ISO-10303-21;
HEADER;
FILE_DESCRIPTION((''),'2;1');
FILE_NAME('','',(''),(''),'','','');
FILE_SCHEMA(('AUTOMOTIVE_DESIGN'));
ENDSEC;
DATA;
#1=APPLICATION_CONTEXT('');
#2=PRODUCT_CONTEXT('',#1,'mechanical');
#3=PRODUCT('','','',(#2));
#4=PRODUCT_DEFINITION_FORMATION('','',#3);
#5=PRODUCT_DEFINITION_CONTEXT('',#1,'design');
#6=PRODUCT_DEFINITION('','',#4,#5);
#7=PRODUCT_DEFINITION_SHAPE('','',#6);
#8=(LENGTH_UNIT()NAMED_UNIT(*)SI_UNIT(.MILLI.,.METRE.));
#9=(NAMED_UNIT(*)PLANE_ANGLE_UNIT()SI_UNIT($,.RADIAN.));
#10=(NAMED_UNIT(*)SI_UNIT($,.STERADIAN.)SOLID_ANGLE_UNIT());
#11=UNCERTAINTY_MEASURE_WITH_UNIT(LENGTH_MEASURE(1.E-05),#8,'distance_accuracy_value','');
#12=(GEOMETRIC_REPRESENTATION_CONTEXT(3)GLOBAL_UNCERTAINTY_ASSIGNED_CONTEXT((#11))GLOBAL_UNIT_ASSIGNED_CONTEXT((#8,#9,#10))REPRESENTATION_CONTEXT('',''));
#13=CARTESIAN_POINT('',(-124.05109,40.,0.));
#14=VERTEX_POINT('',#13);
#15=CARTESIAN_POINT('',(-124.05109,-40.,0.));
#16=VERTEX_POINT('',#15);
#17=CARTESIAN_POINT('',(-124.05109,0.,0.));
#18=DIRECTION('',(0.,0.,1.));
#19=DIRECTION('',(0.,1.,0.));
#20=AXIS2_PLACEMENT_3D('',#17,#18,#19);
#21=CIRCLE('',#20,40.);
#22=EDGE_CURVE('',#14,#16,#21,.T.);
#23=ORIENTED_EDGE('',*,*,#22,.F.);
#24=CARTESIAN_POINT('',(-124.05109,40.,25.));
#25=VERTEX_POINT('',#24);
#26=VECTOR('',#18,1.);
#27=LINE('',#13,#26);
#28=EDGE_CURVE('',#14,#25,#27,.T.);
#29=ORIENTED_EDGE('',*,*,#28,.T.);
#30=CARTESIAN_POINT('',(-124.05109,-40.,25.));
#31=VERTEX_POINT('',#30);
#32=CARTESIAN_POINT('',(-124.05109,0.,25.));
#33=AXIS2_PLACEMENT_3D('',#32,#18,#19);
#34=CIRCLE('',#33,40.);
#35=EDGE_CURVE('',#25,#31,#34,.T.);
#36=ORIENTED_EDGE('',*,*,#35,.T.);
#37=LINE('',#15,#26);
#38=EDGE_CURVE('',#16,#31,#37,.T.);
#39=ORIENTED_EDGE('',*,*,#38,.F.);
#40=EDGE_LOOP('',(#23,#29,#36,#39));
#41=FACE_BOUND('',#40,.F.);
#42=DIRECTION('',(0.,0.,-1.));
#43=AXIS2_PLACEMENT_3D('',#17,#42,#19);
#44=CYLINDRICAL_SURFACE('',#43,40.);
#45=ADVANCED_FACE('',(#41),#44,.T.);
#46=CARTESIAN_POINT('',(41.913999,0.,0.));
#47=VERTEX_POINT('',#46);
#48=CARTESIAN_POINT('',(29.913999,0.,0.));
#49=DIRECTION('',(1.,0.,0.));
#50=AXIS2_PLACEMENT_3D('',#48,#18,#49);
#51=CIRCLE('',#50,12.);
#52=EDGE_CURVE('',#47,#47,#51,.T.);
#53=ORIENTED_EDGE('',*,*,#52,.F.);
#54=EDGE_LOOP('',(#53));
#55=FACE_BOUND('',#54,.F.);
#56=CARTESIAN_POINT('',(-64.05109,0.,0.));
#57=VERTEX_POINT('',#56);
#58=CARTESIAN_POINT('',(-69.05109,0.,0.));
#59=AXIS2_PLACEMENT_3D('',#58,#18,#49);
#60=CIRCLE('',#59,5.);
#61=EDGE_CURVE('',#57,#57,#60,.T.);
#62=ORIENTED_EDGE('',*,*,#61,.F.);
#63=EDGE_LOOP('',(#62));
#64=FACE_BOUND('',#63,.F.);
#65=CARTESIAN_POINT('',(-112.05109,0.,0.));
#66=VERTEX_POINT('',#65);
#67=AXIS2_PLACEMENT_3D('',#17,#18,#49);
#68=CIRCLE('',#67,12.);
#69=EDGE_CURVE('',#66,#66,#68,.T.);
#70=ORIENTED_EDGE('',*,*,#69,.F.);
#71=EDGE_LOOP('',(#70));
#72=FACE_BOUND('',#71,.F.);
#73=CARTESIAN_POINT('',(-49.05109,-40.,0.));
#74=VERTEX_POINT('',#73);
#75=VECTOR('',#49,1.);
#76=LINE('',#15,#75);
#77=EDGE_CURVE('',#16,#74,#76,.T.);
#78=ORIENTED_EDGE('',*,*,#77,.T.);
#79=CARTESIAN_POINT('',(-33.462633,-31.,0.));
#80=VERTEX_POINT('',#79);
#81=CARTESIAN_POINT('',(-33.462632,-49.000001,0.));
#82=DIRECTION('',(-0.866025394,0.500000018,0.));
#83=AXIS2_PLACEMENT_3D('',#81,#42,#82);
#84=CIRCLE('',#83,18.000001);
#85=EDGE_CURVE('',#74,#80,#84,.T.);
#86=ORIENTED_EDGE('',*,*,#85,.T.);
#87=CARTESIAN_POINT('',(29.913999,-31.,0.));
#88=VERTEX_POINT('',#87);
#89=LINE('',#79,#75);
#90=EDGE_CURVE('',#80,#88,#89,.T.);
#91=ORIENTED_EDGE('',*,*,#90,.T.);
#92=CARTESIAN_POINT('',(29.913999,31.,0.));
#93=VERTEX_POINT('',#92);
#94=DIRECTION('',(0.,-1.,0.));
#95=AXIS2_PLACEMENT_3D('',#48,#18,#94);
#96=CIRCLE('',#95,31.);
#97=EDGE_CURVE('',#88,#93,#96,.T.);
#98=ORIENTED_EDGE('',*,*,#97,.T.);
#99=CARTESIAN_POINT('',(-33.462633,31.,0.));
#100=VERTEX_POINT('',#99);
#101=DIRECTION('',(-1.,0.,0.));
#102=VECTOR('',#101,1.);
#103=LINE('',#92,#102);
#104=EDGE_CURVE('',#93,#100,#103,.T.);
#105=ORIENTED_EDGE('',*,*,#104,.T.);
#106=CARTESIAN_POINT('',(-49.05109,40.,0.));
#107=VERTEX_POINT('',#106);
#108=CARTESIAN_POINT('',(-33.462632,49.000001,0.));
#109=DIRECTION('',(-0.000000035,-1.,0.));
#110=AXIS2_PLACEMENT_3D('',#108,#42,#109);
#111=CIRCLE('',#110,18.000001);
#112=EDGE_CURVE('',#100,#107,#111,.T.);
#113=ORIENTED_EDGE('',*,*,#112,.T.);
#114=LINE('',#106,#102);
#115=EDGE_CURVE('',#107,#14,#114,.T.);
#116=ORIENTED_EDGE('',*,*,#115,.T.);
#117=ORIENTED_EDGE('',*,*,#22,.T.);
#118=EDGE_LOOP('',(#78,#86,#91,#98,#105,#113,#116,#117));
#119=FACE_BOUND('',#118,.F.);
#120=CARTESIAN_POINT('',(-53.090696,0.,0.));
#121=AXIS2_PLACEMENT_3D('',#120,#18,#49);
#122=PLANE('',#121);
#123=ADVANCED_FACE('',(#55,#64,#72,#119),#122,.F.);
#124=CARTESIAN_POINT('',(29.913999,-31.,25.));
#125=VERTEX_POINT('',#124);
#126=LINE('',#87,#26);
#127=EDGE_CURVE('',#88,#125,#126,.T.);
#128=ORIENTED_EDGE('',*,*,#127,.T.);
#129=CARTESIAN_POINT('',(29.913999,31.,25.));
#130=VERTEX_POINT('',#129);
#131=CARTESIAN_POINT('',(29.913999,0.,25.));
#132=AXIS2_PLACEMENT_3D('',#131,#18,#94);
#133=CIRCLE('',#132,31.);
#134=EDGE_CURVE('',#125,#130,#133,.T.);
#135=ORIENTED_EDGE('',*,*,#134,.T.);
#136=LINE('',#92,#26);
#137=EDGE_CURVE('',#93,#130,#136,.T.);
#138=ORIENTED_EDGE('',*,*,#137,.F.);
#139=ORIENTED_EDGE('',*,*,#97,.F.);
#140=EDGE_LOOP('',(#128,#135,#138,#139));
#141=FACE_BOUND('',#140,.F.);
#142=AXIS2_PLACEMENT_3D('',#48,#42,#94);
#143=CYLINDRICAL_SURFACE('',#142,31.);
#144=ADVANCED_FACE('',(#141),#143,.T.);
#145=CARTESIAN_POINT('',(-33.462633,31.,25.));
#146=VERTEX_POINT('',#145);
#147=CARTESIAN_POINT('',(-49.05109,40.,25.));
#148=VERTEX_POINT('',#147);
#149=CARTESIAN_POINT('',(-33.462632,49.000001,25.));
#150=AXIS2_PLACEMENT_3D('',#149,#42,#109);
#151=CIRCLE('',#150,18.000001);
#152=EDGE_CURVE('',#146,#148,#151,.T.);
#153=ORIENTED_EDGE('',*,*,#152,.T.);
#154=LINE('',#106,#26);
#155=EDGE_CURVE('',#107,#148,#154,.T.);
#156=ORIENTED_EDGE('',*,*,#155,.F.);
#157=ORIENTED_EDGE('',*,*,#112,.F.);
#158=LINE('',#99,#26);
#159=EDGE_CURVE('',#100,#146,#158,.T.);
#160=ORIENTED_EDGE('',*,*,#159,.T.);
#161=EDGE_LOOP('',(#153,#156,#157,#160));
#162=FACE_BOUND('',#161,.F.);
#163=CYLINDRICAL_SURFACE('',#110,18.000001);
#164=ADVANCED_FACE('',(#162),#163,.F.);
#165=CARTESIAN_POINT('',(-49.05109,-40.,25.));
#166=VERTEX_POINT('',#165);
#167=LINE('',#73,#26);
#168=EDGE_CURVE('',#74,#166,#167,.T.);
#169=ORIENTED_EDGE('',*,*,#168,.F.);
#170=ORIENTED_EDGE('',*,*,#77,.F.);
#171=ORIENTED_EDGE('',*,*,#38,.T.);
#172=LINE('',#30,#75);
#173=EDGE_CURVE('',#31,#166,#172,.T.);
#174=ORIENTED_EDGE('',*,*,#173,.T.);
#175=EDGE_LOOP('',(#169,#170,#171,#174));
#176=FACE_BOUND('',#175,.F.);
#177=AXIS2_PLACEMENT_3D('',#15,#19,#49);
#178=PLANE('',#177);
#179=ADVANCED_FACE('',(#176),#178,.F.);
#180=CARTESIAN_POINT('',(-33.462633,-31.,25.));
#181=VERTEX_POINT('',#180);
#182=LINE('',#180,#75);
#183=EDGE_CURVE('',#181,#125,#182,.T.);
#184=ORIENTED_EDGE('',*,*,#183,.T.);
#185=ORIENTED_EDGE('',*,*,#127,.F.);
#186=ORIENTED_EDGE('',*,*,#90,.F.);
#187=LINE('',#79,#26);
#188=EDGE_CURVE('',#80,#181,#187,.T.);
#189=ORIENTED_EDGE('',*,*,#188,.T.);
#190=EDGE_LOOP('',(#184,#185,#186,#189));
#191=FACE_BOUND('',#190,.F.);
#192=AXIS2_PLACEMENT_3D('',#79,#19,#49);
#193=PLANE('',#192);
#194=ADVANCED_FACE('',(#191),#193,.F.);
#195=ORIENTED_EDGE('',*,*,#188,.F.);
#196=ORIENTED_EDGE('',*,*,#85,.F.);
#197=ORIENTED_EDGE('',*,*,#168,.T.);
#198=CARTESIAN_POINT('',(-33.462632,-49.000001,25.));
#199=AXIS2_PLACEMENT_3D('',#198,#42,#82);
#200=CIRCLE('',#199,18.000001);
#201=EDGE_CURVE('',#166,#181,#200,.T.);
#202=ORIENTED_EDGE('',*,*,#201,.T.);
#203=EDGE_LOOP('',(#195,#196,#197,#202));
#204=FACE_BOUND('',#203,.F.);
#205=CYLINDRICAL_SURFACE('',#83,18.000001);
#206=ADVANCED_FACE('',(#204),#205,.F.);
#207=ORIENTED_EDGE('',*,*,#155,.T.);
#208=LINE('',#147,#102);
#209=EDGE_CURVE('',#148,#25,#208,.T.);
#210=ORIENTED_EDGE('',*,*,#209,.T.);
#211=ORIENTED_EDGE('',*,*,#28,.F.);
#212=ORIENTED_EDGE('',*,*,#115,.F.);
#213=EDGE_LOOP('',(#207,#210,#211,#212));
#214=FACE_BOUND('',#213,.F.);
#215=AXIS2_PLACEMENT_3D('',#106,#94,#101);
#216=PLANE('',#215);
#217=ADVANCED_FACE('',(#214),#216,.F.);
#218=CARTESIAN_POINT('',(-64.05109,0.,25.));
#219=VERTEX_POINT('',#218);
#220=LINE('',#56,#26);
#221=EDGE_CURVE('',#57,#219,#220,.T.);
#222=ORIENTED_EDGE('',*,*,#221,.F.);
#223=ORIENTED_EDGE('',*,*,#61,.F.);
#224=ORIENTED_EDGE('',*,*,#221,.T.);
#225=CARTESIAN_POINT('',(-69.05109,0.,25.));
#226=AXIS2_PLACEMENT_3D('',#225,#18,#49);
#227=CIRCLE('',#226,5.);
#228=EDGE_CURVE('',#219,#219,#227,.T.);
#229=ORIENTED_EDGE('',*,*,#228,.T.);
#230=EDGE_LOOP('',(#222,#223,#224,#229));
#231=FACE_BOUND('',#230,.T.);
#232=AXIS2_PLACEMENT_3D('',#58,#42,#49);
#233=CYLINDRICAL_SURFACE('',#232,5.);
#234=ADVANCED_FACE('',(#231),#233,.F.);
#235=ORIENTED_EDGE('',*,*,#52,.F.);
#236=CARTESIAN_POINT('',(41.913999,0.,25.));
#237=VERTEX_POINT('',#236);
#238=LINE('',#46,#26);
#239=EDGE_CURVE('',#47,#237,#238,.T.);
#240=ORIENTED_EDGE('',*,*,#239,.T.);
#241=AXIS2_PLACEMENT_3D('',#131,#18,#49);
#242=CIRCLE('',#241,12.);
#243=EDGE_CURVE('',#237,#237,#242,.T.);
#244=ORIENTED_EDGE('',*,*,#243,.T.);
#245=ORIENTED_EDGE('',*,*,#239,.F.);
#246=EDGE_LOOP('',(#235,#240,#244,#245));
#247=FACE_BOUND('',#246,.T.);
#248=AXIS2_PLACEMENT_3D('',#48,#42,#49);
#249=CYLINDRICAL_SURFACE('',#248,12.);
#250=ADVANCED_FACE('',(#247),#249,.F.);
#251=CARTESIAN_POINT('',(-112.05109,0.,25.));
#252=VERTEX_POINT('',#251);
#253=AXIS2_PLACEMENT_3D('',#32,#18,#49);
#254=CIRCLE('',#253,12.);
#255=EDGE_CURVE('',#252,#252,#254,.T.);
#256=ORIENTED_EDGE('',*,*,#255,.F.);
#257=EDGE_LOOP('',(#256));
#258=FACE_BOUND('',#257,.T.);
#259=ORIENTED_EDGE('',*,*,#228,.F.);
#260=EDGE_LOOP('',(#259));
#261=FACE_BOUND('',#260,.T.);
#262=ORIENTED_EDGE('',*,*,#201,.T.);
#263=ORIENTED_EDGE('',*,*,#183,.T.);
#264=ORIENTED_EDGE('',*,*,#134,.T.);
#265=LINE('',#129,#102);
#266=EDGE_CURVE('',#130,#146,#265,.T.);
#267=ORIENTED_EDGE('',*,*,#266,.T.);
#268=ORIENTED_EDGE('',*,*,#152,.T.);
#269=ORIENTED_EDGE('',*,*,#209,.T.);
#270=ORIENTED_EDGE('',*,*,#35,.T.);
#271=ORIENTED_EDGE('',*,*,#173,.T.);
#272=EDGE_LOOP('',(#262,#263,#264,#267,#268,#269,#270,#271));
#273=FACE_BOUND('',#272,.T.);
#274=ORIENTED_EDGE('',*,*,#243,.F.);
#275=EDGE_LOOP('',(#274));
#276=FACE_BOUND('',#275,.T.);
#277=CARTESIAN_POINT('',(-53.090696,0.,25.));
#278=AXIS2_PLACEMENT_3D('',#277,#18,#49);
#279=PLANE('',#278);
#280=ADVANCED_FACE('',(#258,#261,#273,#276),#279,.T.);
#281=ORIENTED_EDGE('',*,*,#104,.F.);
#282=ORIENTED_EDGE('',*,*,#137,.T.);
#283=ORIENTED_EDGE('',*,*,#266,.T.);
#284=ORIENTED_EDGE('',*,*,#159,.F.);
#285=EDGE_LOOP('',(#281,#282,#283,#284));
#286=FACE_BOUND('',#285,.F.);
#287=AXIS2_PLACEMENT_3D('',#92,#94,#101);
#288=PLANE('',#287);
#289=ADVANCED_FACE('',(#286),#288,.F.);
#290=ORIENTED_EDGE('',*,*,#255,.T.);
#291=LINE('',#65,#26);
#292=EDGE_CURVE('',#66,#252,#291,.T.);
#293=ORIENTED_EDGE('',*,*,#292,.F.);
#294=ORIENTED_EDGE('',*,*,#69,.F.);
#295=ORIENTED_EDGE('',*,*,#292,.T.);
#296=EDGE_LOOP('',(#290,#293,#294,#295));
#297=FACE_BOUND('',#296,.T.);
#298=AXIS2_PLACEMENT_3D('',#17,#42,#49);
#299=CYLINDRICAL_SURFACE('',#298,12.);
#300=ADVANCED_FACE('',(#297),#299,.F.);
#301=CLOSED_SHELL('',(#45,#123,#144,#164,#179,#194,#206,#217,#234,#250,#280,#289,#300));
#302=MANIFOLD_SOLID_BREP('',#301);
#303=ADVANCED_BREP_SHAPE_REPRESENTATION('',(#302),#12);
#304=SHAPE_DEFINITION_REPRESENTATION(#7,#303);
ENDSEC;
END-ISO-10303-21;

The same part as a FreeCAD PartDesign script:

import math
import FreeCAD as App
import Part
import Sketcher
from FreeCAD import Vector
Q = App.Units.Quantity

doc = App.newDocument("Part")
body = doc.addObject("PartDesign::Body", "Body")

# Sketch on XY plane
sketch1 = doc.addObject("Sketcher::SketchObject", "Sketch")
body.addObject(sketch1)
sketch1.AttachmentSupport = (doc.XY_Plane, [""])
sketch1.MapMode = "FlatFace"
sketch1.addGeometry([
    Part.LineSegment(Vector(-49.05109, 40, 0), Vector(-124.05109, 40, 0)),  # 0
    Part.ArcOfCircle(Part.Circle(Vector(-124.05109, 0, 0), Vector(0, 0, 1), 40), math.radians(90), math.radians(270)),  # 1
    Part.LineSegment(Vector(-124.05109, -40, 0), Vector(-49.05109, -40, 0)),  # 2
    Part.ArcOfCircle(Part.Circle(Vector(-33.462632, -49.000001, 0), Vector(0, 0, 1), 18.000001), math.radians(90.000002), math.radians(149.999999)),  # 3
    Part.LineSegment(Vector(-33.462633, -31, 0), Vector(29.913999, -31, 0)),  # 4
    Part.ArcOfCircle(Part.Circle(Vector(29.913999, 0, 0), Vector(0, 0, 1), 31), math.radians(-90), math.radians(90)),  # 5
    Part.LineSegment(Vector(29.913999, 31, 0), Vector(-33.462633, 31, 0)),  # 6
    Part.ArcOfCircle(Part.Circle(Vector(-33.462632, 49.000001, 0), Vector(0, 0, 1), 18.000001), math.radians(-149.999999), math.radians(-90.000002)),  # 7
    Part.Circle(Vector(-124.05109, 0, 0), Vector(0, 0, 1), 12),  # 8
    Part.Circle(Vector(-69.05109, 0, 0), Vector(0, 0, 1), 5),  # 9
    Part.Circle(Vector(29.913999, 0, 0), Vector(0, 0, 1), 12),  # 10
], False)
sketch1.addConstraint([
    Sketcher.Constraint("Tangent", 0, 2, 1, 1),
    Sketcher.Constraint("Tangent", 1, 2, 2, 1),
    Sketcher.Constraint("Coincident", 2, 2, 3, 2),
    Sketcher.Constraint("Tangent", 3, 1, 4, 1),
    Sketcher.Constraint("Tangent", 4, 2, 5, 1),
    Sketcher.Constraint("Tangent", 5, 2, 6, 1),
    Sketcher.Constraint("Tangent", 6, 2, 7, 2),
    Sketcher.Constraint("Coincident", 7, 1, 0, 1),
    Sketcher.Constraint("Horizontal", 0),
    Sketcher.Constraint("Horizontal", 2),
    Sketcher.Constraint("Horizontal", 4),
    Sketcher.Constraint("Horizontal", 6),
    Sketcher.Constraint("Coincident", 8, 3, 1, 3),
    Sketcher.Constraint("Coincident", 10, 3, 5, 3),
    Sketcher.Constraint("Equal", 3, 7),
    Sketcher.Constraint("Equal", 8, 10),
    Sketcher.Constraint("Symmetric", 3, 3, 7, 3, -1),
    Sketcher.Constraint("PointOnObject", 1, 3, -1),
    Sketcher.Constraint("PointOnObject", 9, 3, -1),
    Sketcher.Constraint("Diameter", 8, Q("24 mm")),
    Sketcher.Constraint("Diameter", 9, Q("10 mm")),
    Sketcher.Constraint("Radius", 1, Q("40 mm")),
    Sketcher.Constraint("Radius", 3, Q("18.000001 mm")),
    Sketcher.Constraint("Radius", 5, Q("31 mm")),
    Sketcher.Constraint("DistanceX", 0, 2, 0, 1, Q("75 mm")),
    Sketcher.Constraint("DistanceX", 1, 3, 9, 3, Q("55 mm")),
    Sketcher.Constraint("DistanceX", -1, 1, 5, 3, Q("29.913999 mm")),
    Sketcher.Constraint("DistanceX", 4, 1, 4, 2, Q("63.376632 mm")),
])
pad1 = doc.addObject("PartDesign::Pad", "Pad")
body.addObject(pad1)
pad1.Profile = sketch1
pad1.Length = 25

doc.recompute()
